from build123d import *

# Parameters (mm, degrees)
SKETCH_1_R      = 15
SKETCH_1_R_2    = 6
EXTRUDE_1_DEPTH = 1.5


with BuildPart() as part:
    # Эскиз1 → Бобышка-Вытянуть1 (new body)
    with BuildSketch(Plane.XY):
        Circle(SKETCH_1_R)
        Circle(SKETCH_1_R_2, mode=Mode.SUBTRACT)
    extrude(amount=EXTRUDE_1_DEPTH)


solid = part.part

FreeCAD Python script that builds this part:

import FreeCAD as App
import Part
import Sketcher
Q = App.Units.Quantity

doc = App.newDocument("Part")
body = doc.addObject("PartDesign::Body", "Body")

# Sketch on XY plane
sketch1 = doc.addObject("Sketcher::SketchObject", "Sketch")
body.addObject(sketch1)
sketch1.AttachmentSupport = (doc.XY_Plane, [""])
sketch1.MapMode = "FlatFace"
sketch1.addGeometry(Part.Circle(App.Vector(0, 0, 0), App.Vector(0, 0, 1), 15), False)
sketch1.addGeometry(Part.Circle(App.Vector(0, 0, 0), App.Vector(0, 0, 1), 6), False)
sketch1.addConstraint(Sketcher.Constraint("Coincident", 0, 3, -1, 1))
sketch1.addConstraint(Sketcher.Constraint("Coincident", 1, 3, -1, 1))
sketch1.addConstraint(Sketcher.Constraint("Diameter", 0, Q("30 mm")))
sketch1.addConstraint(Sketcher.Constraint("Diameter", 1, Q("12 mm")))
pad1 = doc.addObject("PartDesign::Pad", "Pad")
body.addObject(pad1)
pad1.Profile = sketch1
pad1.Length = 1.5

doc.recompute()
